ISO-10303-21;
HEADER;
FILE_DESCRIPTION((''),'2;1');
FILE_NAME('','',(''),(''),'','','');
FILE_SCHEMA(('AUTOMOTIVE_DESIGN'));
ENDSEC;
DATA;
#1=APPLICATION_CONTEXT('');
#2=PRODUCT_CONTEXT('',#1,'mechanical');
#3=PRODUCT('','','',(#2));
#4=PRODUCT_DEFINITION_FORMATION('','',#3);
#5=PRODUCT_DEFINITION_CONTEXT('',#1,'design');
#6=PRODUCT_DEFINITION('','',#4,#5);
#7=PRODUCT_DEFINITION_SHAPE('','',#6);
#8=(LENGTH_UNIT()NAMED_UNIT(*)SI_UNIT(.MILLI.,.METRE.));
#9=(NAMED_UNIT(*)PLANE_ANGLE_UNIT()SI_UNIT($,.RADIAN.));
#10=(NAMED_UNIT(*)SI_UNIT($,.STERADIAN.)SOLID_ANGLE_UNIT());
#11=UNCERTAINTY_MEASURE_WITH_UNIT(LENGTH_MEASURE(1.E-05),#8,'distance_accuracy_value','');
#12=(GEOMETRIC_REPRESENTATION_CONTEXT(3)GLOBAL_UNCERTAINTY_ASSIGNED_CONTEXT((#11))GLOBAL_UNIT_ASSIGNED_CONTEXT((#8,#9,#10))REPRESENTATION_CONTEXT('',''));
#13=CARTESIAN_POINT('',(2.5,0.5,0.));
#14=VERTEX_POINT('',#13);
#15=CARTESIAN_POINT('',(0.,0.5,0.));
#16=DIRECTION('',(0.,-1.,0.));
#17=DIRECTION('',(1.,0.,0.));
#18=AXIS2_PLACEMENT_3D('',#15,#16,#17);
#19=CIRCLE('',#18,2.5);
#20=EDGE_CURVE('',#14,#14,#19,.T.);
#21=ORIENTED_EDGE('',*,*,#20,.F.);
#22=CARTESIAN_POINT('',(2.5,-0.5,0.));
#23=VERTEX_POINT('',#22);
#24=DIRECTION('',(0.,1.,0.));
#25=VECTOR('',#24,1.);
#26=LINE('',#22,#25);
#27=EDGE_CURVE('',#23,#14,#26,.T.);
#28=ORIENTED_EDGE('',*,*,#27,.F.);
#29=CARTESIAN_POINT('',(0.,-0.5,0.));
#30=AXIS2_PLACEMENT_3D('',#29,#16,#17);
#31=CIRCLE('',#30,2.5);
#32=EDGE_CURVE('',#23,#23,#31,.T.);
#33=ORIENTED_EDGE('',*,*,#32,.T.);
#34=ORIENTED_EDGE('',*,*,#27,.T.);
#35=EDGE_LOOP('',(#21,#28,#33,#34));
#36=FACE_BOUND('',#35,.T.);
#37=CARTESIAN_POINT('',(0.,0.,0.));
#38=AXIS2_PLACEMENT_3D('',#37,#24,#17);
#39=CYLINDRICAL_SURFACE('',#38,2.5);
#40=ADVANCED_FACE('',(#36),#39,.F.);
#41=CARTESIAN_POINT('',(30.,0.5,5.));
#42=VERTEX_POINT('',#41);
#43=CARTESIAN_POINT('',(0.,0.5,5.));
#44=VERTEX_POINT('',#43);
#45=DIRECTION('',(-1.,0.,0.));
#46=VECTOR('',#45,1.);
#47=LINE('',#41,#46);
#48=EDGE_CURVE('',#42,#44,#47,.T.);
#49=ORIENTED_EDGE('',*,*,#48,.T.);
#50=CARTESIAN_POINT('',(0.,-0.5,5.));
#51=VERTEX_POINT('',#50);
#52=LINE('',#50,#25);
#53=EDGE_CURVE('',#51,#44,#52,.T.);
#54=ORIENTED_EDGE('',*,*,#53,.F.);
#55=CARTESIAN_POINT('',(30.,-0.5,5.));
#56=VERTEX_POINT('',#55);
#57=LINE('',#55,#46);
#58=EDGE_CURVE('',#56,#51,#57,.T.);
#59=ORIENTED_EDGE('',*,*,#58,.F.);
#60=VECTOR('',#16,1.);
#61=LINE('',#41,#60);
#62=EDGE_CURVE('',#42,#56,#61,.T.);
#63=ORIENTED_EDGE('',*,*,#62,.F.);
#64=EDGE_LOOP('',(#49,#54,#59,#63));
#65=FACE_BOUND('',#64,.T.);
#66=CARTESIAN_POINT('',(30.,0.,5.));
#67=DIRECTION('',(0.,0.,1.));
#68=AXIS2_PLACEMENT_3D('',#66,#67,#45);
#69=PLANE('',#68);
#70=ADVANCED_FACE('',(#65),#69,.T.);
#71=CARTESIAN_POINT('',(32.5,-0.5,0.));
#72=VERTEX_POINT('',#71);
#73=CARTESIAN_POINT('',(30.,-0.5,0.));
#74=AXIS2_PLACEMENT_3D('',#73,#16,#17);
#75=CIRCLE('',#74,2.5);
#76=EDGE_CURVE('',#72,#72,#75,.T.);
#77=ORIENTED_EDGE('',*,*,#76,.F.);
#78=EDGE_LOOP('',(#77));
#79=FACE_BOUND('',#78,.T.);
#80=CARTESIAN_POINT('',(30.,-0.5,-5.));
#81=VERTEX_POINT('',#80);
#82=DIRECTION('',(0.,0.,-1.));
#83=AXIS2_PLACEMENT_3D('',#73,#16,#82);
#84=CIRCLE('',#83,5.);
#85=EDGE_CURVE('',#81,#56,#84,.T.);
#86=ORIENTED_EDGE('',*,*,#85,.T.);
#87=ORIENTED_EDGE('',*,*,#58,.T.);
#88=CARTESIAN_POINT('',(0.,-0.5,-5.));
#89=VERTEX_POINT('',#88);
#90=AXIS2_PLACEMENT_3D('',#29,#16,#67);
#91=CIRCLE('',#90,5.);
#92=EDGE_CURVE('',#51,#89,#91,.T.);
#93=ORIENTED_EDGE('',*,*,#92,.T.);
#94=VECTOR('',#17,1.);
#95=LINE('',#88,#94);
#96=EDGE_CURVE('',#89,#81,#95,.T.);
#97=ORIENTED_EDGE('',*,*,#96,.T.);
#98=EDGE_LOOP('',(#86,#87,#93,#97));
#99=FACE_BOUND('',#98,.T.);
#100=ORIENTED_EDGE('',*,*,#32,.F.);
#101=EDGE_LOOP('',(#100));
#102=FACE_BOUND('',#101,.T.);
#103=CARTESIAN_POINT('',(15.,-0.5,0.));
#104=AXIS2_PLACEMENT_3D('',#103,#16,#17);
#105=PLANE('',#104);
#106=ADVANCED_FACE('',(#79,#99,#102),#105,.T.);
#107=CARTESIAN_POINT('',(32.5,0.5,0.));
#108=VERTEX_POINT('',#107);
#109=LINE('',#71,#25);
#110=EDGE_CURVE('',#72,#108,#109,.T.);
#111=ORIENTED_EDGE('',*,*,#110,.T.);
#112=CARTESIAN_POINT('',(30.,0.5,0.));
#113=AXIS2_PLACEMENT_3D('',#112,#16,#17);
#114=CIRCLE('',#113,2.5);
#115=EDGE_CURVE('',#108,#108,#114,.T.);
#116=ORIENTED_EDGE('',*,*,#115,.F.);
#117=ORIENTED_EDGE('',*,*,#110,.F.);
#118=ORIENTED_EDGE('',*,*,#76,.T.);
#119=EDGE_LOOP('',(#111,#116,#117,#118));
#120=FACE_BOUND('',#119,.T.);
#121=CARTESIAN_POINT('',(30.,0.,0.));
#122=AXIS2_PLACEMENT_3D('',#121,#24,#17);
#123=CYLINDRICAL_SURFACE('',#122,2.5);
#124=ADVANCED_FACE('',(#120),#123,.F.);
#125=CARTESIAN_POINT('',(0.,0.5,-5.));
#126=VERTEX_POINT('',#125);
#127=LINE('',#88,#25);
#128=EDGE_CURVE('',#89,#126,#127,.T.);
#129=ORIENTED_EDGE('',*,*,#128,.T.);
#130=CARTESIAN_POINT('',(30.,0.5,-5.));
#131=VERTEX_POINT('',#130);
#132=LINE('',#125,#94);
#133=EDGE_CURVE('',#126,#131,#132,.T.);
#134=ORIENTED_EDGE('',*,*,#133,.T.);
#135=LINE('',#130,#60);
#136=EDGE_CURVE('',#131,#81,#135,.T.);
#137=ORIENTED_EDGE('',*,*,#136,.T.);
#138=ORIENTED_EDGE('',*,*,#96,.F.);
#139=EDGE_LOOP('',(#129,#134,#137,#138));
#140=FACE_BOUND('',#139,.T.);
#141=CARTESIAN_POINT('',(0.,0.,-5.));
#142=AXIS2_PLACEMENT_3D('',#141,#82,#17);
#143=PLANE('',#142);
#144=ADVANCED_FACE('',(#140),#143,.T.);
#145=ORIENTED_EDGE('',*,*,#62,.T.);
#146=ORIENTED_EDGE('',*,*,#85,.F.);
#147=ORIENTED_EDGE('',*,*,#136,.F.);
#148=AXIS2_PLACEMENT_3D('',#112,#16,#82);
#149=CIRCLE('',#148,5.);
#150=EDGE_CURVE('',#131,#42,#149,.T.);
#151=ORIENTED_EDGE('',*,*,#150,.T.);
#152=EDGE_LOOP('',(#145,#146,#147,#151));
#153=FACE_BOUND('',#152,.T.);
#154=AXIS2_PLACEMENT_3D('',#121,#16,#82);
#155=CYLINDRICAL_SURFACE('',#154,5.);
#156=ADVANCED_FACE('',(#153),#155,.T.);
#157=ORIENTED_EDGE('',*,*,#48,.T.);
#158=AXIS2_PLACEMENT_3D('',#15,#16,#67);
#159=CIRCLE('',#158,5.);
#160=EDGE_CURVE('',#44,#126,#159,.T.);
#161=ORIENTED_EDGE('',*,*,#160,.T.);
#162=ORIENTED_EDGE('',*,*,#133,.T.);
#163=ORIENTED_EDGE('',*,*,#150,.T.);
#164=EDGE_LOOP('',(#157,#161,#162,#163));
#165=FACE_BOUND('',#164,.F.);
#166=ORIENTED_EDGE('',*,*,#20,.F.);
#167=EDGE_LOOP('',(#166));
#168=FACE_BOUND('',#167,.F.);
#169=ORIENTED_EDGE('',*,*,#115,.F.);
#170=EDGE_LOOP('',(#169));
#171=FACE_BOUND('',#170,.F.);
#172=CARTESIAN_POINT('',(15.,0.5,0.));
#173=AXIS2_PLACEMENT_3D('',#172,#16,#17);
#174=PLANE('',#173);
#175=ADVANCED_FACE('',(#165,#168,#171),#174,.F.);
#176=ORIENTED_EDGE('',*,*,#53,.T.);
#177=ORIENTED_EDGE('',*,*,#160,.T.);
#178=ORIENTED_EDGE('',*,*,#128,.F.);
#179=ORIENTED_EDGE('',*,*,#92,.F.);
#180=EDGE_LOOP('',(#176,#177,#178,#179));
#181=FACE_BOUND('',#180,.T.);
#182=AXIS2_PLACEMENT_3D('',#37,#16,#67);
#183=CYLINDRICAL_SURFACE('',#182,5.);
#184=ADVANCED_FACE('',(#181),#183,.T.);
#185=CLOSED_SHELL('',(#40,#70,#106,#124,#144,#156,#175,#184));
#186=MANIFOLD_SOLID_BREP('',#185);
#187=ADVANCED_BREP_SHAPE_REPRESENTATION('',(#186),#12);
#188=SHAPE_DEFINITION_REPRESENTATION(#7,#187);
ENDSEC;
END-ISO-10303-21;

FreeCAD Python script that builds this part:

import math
import FreeCAD as App
import Part
import Sketcher
Q = App.Units.Quantity

doc = App.newDocument("Part")
body = doc.addObject("PartDesign::Body", "Body")

# Sketch on XZ plane
sketch1 = body.newObject("Sketcher::SketchObject", "Sketch")
sketch1.AttachmentSupport = (doc.getObject("XZ_Plane"), [""])
sketch1.MapMode = "FlatFace"
sketch1.addGeometry([
    Part.LineSegment(App.Vector(0, -5, 0), App.Vector(30, -5, 0)),  # 0
    Part.ArcOfCircle(Part.Circle(App.Vector(30, 0, 0), App.Vector(0, 0, 1), 5), math.radians(-90), math.radians(90)),  # 1
    Part.LineSegment(App.Vector(30, 5, 0), App.Vector(0, 5, 0)),  # 2
    Part.ArcOfCircle(Part.Circle(App.Vector(0, 0, 0), App.Vector(0, 0, 1), 5), math.radians(90), math.radians(270)),  # 3
    Part.Circle(App.Vector(0, 0, 0), App.Vector(0, 0, 1), 2.5),  # 4
    Part.Circle(App.Vector(30, 0, 0), App.Vector(0, 0, 1), 2.5),  # 5
], False)
sketch1.addConstraint([
    Sketcher.Constraint("Tangent", 0, 2, 1, 1),
    Sketcher.Constraint("Tangent", 1, 2, 2, 1),
    Sketcher.Constraint("Tangent", 2, 2, 3, 1),
    Sketcher.Constraint("Tangent", 3, 2, 0, 1),
    Sketcher.Constraint("Horizontal", 0),
    Sketcher.Constraint("Horizontal", 2),
    Sketcher.Constraint("Coincident", 3, 3, -1, 1),
    Sketcher.Constraint("Coincident", 4, 3, -1, 1),
    Sketcher.Constraint("Coincident", 5, 3, 1, 3),
    Sketcher.Constraint("Equal", 4, 5),
    Sketcher.Constraint("Diameter", 4, Q("5 mm")),
    Sketcher.Constraint("Radius", 1, Q("5 mm")),
    Sketcher.Constraint("DistanceX", 0, 1, 0, 2, Q("30 mm")),
])
pad1 = body.newObject("PartDesign::Pad", "Pad")
pad1.Profile = sketch1
pad1.Length = 1
pad1.Midplane = True

doc.recompute()
